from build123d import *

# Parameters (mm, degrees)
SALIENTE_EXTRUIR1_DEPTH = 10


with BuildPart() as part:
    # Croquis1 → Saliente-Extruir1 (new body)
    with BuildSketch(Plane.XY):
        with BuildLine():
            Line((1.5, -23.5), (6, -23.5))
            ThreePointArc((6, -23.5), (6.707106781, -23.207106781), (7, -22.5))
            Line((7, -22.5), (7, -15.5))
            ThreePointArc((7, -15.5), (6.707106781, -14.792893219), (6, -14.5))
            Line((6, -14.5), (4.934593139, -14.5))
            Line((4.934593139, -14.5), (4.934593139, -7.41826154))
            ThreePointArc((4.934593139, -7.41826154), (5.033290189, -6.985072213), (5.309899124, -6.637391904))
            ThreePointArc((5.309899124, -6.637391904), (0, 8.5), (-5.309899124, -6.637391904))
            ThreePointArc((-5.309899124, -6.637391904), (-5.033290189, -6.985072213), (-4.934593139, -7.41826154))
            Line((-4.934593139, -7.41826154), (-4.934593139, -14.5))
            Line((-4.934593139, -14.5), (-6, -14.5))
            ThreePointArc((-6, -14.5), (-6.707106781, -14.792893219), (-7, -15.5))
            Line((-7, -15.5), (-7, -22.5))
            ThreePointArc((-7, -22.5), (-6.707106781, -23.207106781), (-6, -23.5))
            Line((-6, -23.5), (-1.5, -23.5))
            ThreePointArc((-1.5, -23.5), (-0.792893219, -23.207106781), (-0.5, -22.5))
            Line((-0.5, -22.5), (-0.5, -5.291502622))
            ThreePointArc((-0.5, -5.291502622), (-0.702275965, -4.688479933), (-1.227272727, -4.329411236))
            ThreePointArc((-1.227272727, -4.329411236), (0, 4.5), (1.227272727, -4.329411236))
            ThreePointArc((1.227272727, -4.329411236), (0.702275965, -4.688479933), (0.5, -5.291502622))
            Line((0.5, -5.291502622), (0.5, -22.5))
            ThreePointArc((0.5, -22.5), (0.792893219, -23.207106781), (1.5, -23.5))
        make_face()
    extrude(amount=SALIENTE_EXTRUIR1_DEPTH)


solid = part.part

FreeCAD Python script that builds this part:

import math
import FreeCAD as App
import Part
import Sketcher
Q = App.Units.Quantity

doc = App.newDocument("Part")
body = doc.addObject("PartDesign::Body", "Body")

sketch1 = body.newObject("Sketcher::SketchObject", "Sketch")
sketch1.AttachmentSupport = (doc.getObject("XY_Plane"), [""])
sketch1.MapMode = "FlatFace"
sketch1.addGeometry([
    Part.LineSegment(App.Vector(1.5, -23.5, 0), App.Vector(6, -23.5, 0)),
    Part.ArcOfCircle(Part.Circle(App.Vector(6, -22.5, 0), App.Vector(0, 0, 1), 1), math.radians(-90), math.radians(0)),
    Part.LineSegment(App.Vector(7, -22.5, 0), App.Vector(7, -15.5, 0)),
    Part.ArcOfCircle(Part.Circle(App.Vector(6, -15.5, 0), App.Vector(0, 0, 1), 1), math.radians(0), math.radians(90)),
    Part.LineSegment(App.Vector(6, -14.5, 0), App.Vector(4.9, -14.5, 0)),
    Part.LineSegment(App.Vector(4.9, -14.5, 0), App.Vector(4.9, -7.4, 0)),
    Part.ArcOfCircle(Part.Circle(App.Vector(5.9, -7.4, 0), App.Vector(0, 0, 1), 1), math.radians(129), math.radians(180)),
    Part.ArcOfCircle(Part.Circle(App.Vector(0, 0, 0), App.Vector(0, 0, 1), 8.5), math.radians(-51), math.radians(231)),
    Part.ArcOfCircle(Part.Circle(App.Vector(-5.9, -7.4, 0), App.Vector(0, 0, 1), 1), math.radians(0), math.radians(51)),
    Part.LineSegment(App.Vector(-4.9, -7.4, 0), App.Vector(-4.9, -14.5, 0)),
    Part.LineSegment(App.Vector(-4.9, -14.5, 0), App.Vector(-6, -14.5, 0)),
    Part.ArcOfCircle(Part.Circle(App.Vector(-6, -15.5, 0), App.Vector(0, 0, 1), 1), math.radians(90), math.radians(180)),
    Part.LineSegment(App.Vector(-7, -15.5, 0), App.Vector(-7, -22.5, 0)),
    Part.ArcOfCircle(Part.Circle(App.Vector(-6, -22.5, 0), App.Vector(0, 0, 1), 1), math.radians(-180), math.radians(-90)),
    Part.LineSegment(App.Vector(-6, -23.5, 0), App.Vector(-1.5, -23.5, 0)),
    Part.ArcOfCircle(Part.Circle(App.Vector(-1.5, -22.5, 0), App.Vector(0, 0, 1), 1), math.radians(-90), math.radians(0)),
    Part.LineSegment(App.Vector(-0.5, -22.5, 0), App.Vector(-0.5, -5.3, 0)),
    Part.ArcOfCircle(Part.Circle(App.Vector(-1.5, -5.3, 0), App.Vector(0, 0, 1), 1), math.radians(0), math.radians(74)),
    Part.ArcOfCircle(Part.Circle(App.Vector(0, 0, 0), App.Vector(0, 0, 1), 4.5), math.radians(-74), math.radians(254)),
    Part.ArcOfCircle(Part.Circle(App.Vector(1.5, -5.3, 0), App.Vector(0, 0, 1), 1), math.radians(106), math.radians(180)),
    Part.LineSegment(App.Vector(0.5, -5.3, 0), App.Vector(0.5, -22.5, 0)),
    Part.ArcOfCircle(Part.Circle(App.Vector(1.5, -22.5, 0), App.Vector(0, 0, 1), 1), math.radians(-180), math.radians(-90)),
], False)
sketch1.addConstraint([
    Sketcher.Constraint("Tangent", 0, 2, 1, 1),
    Sketcher.Constraint("Tangent", 1, 2, 2, 1),
    Sketcher.Constraint("Tangent", 2, 2, 3, 1),
    Sketcher.Constraint("Tangent", 3, 2, 4, 1),
    Sketcher.Constraint("Coincident", 4, 2, 5, 1),
    Sketcher.Constraint("Tangent", 5, 2, 6, 2),
    Sketcher.Constraint("Tangent", 6, 1, 7, 1),
    Sketcher.Constraint("Tangent", 7, 2, 8, 2),
    Sketcher.Constraint("Tangent", 8, 1, 9, 1),
    Sketcher.Constraint("Coincident", 9, 2, 10, 1),
    Sketcher.Constraint("Tangent", 10, 2, 11, 1),
    Sketcher.Constraint("Tangent", 11, 2, 12, 1),
    Sketcher.Constraint("Tangent", 12, 2, 13, 1),
    Sketcher.Constraint("Tangent", 13, 2, 14, 1),
    Sketcher.Constraint("Tangent", 14, 2, 15, 1),
    Sketcher.Constraint("Tangent", 15, 2, 16, 1),
    Sketcher.Constraint("Tangent", 16, 2, 17, 1),
    Sketcher.Constraint("Tangent", 17, 2, 18, 2),
    Sketcher.Constraint("Tangent", 18, 1, 19, 1),
    Sketcher.Constraint("Tangent", 19, 2, 20, 1),
    Sketcher.Constraint("Tangent", 20, 2, 21, 1),
    Sketcher.Constraint("Tangent", 21, 2, 0, 1),
    Sketcher.Constraint("Horizontal", 0),
    Sketcher.Constraint("Vertical", 2),
    Sketcher.Constraint("Horizontal", 4),
    Sketcher.Constraint("Vertical", 5),
    Sketcher.Constraint("Vertical", 9),
    Sketcher.Constraint("Horizontal", 10),
    Sketcher.Constraint("Vertical", 12),
    Sketcher.Constraint("Horizontal", 14),
    Sketcher.Constraint("Vertical", 16),
    Sketcher.Constraint("Vertical", 20),
    Sketcher.Constraint("Coincident", 7, 3, -1, 1),
    Sketcher.Constraint("Coincident", 18, 3, -1, 1),
    Sketcher.Constraint("Equal", 1, 3),
    Sketcher.Constraint("Equal", 3, 6),
    Sketcher.Constraint("Equal", 6, 8),
    Sketcher.Constraint("Equal", 8, 11),
    Sketcher.Constraint("Equal", 11, 13),
    Sketcher.Constraint("Equal", 13, 15),
    Sketcher.Constraint("Equal", 15, 17),
    Sketcher.Constraint("Equal", 17, 19),
    Sketcher.Constraint("Equal", 19, 21),
    Sketcher.Constraint("Symmetric", 3, 3, 11, 3, -2),
    Sketcher.Constraint("Symmetric", 15, 3, 21, 3, -2),
    Sketcher.Constraint("Horizontal", 6, 3, 8, 3),
    Sketcher.Constraint("Radius", 1, Q("1 mm")),
    Sketcher.Constraint("Radius", 7, Q("8.5 mm")),
    Sketcher.Constraint("Radius", 18, Q("4.5 mm")),
    Sketcher.Constraint("DistanceY", 2, 1, 2, 2, Q("7 mm")),
    Sketcher.Constraint("DistanceX", 0, 1, 0, 2, Q("4.5 mm")),
    Sketcher.Constraint("DistanceX", -1, 1, 1, 3, Q("6 mm")),
    Sketcher.Constraint("DistanceY", 1, 3, -1, 1, Q("22.5 mm")),
    Sketcher.Constraint("DistanceY", 5, 1, 5, 2, Q("7.081738 mm")),
])
pad1 = body.newObject("PartDesign::Pad", "Pad")
pad1.Profile = sketch1
pad1.Length = 10

doc.recompute()
